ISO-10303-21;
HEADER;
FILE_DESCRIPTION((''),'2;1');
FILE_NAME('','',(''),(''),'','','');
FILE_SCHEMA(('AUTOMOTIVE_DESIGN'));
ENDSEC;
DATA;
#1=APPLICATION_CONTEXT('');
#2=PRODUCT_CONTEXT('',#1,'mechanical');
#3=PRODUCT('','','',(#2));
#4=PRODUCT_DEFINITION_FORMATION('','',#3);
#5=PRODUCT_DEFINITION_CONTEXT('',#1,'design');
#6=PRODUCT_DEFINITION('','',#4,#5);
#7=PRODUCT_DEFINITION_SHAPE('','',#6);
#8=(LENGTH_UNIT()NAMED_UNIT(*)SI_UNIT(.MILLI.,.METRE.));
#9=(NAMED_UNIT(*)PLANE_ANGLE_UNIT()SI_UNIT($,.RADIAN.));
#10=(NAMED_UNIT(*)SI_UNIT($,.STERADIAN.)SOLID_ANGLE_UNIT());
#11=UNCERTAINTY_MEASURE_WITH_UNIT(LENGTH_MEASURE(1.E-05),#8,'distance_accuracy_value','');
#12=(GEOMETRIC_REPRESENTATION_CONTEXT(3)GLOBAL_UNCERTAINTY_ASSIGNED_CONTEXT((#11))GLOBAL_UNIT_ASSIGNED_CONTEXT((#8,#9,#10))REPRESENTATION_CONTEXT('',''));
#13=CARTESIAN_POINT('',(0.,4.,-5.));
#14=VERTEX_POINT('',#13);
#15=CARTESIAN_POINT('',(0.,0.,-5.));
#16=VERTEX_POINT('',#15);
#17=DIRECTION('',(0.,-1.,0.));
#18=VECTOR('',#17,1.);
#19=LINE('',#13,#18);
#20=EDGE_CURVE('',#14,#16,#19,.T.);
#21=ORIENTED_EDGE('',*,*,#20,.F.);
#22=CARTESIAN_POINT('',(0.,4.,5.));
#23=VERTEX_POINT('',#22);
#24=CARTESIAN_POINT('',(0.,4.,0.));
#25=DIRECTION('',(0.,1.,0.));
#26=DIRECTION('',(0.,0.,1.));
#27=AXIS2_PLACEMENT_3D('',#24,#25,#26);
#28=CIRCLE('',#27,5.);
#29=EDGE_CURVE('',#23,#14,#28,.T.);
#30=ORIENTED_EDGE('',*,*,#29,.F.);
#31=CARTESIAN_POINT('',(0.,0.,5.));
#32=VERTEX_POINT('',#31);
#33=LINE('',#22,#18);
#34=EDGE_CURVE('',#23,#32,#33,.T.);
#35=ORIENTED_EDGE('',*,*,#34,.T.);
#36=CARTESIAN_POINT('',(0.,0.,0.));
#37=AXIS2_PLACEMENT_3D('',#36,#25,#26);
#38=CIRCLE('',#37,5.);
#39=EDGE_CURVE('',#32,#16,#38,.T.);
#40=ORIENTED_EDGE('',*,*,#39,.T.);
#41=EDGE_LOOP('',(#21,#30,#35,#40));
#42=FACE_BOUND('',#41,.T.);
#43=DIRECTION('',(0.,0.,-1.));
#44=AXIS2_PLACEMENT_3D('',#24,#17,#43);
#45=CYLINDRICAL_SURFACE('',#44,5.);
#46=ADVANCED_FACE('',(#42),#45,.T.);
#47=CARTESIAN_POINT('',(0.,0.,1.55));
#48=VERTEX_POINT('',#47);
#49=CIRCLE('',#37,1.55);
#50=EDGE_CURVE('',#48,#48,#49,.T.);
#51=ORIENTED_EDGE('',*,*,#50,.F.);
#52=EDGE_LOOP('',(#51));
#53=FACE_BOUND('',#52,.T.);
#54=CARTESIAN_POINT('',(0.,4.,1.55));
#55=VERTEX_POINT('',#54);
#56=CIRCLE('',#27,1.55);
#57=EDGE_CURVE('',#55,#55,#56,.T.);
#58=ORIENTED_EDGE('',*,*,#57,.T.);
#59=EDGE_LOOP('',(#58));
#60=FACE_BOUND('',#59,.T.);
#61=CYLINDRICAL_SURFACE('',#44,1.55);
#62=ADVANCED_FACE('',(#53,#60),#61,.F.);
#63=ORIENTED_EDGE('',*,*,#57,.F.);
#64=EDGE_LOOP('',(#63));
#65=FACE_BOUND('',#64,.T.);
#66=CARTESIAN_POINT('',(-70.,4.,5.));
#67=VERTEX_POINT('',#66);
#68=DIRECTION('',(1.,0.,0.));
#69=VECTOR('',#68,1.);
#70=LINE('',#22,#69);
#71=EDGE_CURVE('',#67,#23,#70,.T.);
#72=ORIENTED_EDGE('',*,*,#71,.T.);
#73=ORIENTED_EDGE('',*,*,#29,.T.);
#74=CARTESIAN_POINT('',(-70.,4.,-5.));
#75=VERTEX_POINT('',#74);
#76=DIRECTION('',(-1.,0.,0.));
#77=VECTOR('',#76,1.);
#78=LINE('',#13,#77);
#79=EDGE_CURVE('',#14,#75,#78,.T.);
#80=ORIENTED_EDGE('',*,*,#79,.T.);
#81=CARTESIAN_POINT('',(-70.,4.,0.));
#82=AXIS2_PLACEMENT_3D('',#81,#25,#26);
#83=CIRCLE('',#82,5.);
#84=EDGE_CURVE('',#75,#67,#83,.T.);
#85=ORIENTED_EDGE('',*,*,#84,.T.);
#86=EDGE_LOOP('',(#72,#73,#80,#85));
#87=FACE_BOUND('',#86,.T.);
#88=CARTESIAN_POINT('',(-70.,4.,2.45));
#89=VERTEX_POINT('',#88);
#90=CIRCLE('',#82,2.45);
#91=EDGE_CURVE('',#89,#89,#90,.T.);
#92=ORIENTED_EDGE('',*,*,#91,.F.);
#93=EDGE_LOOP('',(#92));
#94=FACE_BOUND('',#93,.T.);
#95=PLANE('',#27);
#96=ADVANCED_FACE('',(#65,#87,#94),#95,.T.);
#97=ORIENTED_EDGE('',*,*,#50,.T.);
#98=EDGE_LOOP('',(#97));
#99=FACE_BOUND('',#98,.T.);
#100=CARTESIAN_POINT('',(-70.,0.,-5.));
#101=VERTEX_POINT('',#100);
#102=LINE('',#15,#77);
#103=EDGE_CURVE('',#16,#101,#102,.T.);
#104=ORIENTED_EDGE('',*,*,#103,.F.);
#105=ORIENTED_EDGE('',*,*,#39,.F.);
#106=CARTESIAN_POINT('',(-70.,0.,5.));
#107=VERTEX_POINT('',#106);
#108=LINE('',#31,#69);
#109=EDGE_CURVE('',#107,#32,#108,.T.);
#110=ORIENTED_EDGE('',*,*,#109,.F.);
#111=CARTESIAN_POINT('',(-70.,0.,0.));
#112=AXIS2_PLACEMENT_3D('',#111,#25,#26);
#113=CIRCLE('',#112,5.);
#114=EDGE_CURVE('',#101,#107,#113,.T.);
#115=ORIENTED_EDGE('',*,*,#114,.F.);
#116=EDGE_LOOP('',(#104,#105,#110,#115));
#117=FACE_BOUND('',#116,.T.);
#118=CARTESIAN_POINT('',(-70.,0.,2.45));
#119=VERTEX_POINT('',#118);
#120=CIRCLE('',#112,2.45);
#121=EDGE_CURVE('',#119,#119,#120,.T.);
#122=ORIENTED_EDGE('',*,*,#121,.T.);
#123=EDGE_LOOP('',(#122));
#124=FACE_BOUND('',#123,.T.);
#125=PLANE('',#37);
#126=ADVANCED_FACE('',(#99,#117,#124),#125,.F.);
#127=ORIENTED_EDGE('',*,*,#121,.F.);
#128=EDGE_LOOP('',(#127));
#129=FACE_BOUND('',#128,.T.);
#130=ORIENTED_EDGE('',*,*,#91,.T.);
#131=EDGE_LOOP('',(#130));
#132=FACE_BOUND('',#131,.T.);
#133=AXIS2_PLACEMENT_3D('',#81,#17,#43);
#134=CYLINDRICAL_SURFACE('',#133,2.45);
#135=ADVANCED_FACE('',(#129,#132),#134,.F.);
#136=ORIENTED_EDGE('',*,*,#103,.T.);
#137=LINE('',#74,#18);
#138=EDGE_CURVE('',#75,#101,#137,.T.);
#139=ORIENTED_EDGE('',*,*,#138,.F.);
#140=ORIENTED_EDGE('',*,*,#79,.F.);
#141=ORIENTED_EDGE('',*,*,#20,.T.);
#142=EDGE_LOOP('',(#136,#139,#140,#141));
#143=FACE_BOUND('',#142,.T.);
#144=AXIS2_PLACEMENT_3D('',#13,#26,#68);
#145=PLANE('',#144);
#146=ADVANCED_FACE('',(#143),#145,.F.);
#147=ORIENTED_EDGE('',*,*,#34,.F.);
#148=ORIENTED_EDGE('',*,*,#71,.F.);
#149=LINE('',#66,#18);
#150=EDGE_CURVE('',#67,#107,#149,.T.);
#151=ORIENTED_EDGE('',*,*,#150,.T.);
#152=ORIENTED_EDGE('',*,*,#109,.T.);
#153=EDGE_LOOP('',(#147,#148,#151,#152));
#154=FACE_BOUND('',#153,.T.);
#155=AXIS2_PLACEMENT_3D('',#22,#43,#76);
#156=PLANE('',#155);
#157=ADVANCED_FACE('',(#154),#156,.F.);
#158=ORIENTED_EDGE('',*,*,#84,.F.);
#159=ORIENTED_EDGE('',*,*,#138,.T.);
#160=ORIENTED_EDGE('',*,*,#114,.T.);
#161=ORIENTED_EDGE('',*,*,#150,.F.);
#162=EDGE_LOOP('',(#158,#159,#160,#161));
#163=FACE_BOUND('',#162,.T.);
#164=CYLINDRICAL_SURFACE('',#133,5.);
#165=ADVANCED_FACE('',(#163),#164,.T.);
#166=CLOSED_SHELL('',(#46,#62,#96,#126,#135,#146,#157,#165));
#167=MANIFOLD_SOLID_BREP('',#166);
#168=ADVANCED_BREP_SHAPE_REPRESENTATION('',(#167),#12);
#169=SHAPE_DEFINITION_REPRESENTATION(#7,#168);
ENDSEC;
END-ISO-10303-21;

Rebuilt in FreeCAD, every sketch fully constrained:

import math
import FreeCAD as App
import Part
import Sketcher

V = App.Vector
Q = App.Units.Quantity

doc = App.newDocument("Part")
body = doc.addObject("PartDesign::Body", "Body")

# Sketch on XZ plane
sketch1 = body.newObject("Sketcher::SketchObject", "Sketch")
sketch1.AttachmentSupport = (doc.getObject("XZ_Plane"), [""])
sketch1.MapMode = "FlatFace"
sketch1.addGeometry(Part.LineSegment(V(-70, 5, 0), V(0, 5, 0)), False)
sketch1.addGeometry(Part.ArcOfCircle(Part.Circle(V(0, 0, 0), V(0, 0, 1), 5), math.radians(-90), math.radians(90)), False)
sketch1.addGeometry(Part.LineSegment(V(0, -5, 0), V(-70, -5, 0)), False)
sketch1.addGeometry(Part.ArcOfCircle(Part.Circle(V(-70, 0, 0), V(0, 0, 1), 5), math.radians(90), math.radians(270)), False)
sketch1.addGeometry(Part.Circle(V(0, 0, 0), V(0, 0, 1), 1.6), False)
sketch1.addGeometry(Part.Circle(V(-70, 0, 0), V(0, 0, 1), 2.5), False)
sketch1.addConstraint(Sketcher.Constraint("Tangent", 0, 2, 1, 2))
sketch1.addConstraint(Sketcher.Constraint("Tangent", 1, 1, 2, 1))
sketch1.addConstraint(Sketcher.Constraint("Tangent", 2, 2, 3, 2))
sketch1.addConstraint(Sketcher.Constraint("Tangent", 3, 1, 0, 1))
sketch1.addConstraint(Sketcher.Constraint("Horizontal", 0))
sketch1.addConstraint(Sketcher.Constraint("Horizontal", 2))
sketch1.addConstraint(Sketcher.Constraint("Coincident", 1, 3, -1, 1))
sketch1.addConstraint(Sketcher.Constraint("Coincident", 4, 3, -1, 1))
sketch1.addConstraint(Sketcher.Constraint("Coincident", 5, 3, 3, 3))
sketch1.addConstraint(Sketcher.Constraint("Radius", 1, Q("5 mm")))
sketch1.addConstraint(Sketcher.Constraint("Diameter", 4, Q("3.1 mm")))
sketch1.addConstraint(Sketcher.Constraint("Diameter", 5, Q("4.9 mm")))
sketch1.addConstraint(Sketcher.Constraint("DistanceX", 0, 1, 0, 2, Q("70 mm")))
pad1 = body.newObject("PartDesign::Pad", "Pad")
pad1.Profile = sketch1
pad1.Length = 4
pad1.Reversed = True

doc.recompute()
